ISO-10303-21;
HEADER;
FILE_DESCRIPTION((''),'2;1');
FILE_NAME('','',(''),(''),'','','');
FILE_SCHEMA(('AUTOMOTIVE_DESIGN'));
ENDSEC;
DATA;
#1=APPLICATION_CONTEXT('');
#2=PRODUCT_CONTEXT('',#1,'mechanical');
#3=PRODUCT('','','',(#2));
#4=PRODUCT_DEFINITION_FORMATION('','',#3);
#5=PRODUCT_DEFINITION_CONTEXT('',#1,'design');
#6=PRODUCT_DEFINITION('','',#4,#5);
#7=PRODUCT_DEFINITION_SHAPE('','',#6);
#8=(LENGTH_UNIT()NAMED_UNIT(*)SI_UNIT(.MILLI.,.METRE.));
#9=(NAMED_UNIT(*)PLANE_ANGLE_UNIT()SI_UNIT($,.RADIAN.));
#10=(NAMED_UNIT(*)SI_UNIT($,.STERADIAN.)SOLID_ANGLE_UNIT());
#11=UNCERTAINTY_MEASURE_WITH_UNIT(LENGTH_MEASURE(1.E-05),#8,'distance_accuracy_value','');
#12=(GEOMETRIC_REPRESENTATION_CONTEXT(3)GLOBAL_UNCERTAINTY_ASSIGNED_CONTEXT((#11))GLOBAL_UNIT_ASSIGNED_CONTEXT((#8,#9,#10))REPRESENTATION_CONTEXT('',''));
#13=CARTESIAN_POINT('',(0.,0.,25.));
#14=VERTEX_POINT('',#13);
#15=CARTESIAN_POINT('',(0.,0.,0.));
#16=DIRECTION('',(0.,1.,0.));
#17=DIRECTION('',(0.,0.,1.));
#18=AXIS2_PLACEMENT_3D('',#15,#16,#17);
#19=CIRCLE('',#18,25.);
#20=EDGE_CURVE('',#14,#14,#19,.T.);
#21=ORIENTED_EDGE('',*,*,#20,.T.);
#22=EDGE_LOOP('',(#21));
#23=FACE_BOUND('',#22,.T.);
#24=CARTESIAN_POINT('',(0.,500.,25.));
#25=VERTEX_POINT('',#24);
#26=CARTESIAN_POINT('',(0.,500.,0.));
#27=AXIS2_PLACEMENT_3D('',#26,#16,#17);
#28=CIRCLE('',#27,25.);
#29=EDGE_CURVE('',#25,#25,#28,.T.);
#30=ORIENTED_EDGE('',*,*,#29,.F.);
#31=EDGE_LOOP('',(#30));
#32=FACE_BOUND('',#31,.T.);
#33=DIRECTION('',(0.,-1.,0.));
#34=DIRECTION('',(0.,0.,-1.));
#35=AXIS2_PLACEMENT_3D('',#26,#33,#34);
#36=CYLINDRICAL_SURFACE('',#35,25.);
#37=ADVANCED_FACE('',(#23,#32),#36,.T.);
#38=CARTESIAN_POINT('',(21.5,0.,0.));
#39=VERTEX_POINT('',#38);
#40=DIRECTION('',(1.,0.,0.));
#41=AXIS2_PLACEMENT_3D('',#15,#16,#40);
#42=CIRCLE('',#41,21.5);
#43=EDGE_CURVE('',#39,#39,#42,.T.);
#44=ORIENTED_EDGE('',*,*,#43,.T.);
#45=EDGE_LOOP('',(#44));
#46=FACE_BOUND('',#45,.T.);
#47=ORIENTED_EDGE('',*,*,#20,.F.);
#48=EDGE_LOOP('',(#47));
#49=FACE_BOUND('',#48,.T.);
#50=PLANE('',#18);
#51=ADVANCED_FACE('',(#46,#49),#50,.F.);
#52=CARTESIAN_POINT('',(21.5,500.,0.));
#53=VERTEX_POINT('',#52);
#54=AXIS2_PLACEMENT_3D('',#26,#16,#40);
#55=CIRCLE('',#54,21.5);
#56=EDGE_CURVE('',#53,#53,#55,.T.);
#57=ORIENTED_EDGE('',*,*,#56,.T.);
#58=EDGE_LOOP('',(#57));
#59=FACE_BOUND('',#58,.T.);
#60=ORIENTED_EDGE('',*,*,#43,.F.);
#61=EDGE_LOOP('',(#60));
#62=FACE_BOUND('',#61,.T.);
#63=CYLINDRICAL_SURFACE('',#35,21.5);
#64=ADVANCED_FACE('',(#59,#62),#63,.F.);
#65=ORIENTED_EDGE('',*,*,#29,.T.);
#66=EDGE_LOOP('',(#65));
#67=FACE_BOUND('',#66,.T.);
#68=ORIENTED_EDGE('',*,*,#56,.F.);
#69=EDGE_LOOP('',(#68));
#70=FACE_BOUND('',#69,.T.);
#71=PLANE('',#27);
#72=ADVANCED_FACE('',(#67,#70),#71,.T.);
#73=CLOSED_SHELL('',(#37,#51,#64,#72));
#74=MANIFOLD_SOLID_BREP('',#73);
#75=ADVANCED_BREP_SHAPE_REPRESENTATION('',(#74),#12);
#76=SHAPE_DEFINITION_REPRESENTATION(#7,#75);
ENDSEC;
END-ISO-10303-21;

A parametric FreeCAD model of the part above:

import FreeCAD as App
import Part
import Sketcher
from FreeCAD import Vector
Q = App.Units.Quantity

doc = App.newDocument("Part")
body = doc.addObject("PartDesign::Body", "Body")

# Sketch on XZ plane
sketch1 = body.newObject("Sketcher::SketchObject", "Sketch")
sketch1.AttachmentSupport = (doc.getObject("XZ_Plane"), [""])
sketch1.MapMode = "FlatFace"
sketch1.addGeometry(Part.Circle(Vector(0, 0, 0), Vector(0, 0, 1), 25), False)
sketch1.addGeometry(Part.Circle(Vector(0, 0, 0), Vector(0, 0, 1), 22), False)
sketch1.addConstraint(Sketcher.Constraint("Coincident", 0, 3, -1, 1))
sketch1.addConstraint(Sketcher.Constraint("Coincident", 1, 3, -1, 1))
sketch1.addConstraint(Sketcher.Constraint("Diameter", 0, Q("50 mm")))
sketch1.addConstraint(Sketcher.Constraint("Diameter", 1, Q("43 mm")))
pad1 = body.newObject("PartDesign::Pad", "Pad")
pad1.Profile = sketch1
pad1.Length = 500
pad1.Reversed = True

doc.recompute()
